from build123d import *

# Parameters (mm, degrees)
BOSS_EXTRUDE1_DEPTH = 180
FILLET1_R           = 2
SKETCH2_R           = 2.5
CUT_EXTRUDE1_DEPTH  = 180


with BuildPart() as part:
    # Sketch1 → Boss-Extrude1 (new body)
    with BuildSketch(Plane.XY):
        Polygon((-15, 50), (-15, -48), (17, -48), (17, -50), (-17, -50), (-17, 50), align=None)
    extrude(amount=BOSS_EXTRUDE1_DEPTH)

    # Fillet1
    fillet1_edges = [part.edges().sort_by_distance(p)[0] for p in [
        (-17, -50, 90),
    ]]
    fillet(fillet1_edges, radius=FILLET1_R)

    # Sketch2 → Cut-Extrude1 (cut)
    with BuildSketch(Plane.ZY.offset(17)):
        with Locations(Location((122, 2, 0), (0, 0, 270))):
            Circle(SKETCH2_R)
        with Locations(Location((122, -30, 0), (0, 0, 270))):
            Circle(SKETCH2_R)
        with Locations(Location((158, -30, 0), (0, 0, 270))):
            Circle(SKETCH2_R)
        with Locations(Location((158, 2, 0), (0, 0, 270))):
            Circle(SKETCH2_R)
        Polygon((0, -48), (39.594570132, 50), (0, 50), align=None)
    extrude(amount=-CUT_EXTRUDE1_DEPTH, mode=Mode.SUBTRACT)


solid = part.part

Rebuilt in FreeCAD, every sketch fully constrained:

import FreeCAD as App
import Part
import Sketcher
from FreeCAD import Vector
Q = App.Units.Quantity


def edges_at(feature, points):
    """Names of the edges that pass closest to the given points."""
    edges = feature.Shape.Edges
    near = lambda p: min(range(len(edges)), key=lambda i: edges[i].distToShape(Part.Vertex(*p))[0])
    return sorted({f"Edge{near(p) + 1}" for p in points})


def add_polygon(sketch, points):
    """Adds a closed chain of lines whose ends are joined by coincident constraints."""
    first, n = sketch.GeometryCount, len(points)
    for a, b in zip(points, points[1:] + points[:1]):
        sketch.addGeometry(Part.LineSegment(App.Vector(*a, 0), App.Vector(*b, 0)), False)
    for i in range(n):
        sketch.addConstraint(Sketcher.Constraint("Coincident", first + i, 2, first + (i + 1) % n, 1))

doc = App.newDocument("Part")
body = doc.addObject("PartDesign::Body", "Body")

sketch1 = body.newObject("Sketcher::SketchObject", "Sketch")
sketch1.AttachmentSupport = (doc.getObject("XY_Plane"), [""])
sketch1.MapMode = "FlatFace"
add_polygon(sketch1, [(-15, -48), (-15, 50), (-17, 50), (-17, -50), (17, -50), (17, -48)])
sketch1.addConstraint(Sketcher.Constraint("Vertical", 0))
sketch1.addConstraint(Sketcher.Constraint("Horizontal", 1))
sketch1.addConstraint(Sketcher.Constraint("Vertical", 2))
sketch1.addConstraint(Sketcher.Constraint("Horizontal", 3))
sketch1.addConstraint(Sketcher.Constraint("Vertical", 4))
sketch1.addConstraint(Sketcher.Constraint("Horizontal", 5))
sketch1.addConstraint(Sketcher.Constraint("Symmetric", 1, 2, 3, 2, -1, 1))
sketch1.addConstraint(Sketcher.Constraint("Equal", 1, 4))
sketch1.addConstraint(Sketcher.Constraint("DistanceX", 1, 2, 1, 1, Q("2 mm")))
sketch1.addConstraint(Sketcher.Constraint("DistanceX", 3, 1, 3, 2, Q("34 mm")))
sketch1.addConstraint(Sketcher.Constraint("DistanceY", 0, 1, 0, 2, Q("98 mm")))
pad1 = body.newObject("PartDesign::Pad", "Pad")
pad1.Profile = sketch1
pad1.Length = 180
doc.recompute()

fillet = body.newObject("PartDesign::Fillet", "Fillet")
fillet.Base = (pad1, edges_at(pad1, [(-17, -50, 90)]))
fillet.Radius = 2

sketch2 = body.newObject("Sketcher::SketchObject", "Sketch001")
sketch2.AttachmentSupport = (doc.getObject("YZ_Plane"), [""])
sketch2.MapMode = "FlatFace"
sketch2.AttachmentOffset = App.Placement(Vector(0, 0, -17), App.Rotation())
sketch2.addGeometry(Part.Circle(Vector(2, 122, 0), Vector(0, 0, 1), 2.5), False)
sketch2.addGeometry(Part.Circle(Vector(-30, 122, 0), Vector(0, 0, 1), 2.5), False)
sketch2.addGeometry(Part.Circle(Vector(-30, 158, 0), Vector(0, 0, 1), 2.5), False)
sketch2.addGeometry(Part.Circle(Vector(2, 158, 0), Vector(0, 0, 1), 2.5), False)
add_polygon(sketch2, [(-48, 0), (50, 39.6), (50, 0)])
sketch2.addConstraint(Sketcher.Constraint("Vertical", 5))
sketch2.addConstraint(Sketcher.Constraint("Horizontal", 6))
sketch2.addConstraint(Sketcher.Constraint("Equal", 0, 1))
sketch2.addConstraint(Sketcher.Constraint("Equal", 1, 2))
sketch2.addConstraint(Sketcher.Constraint("Equal", 2, 3))
sketch2.addConstraint(Sketcher.Constraint("PointOnObject", 5, 2, -1))
sketch2.addConstraint(Sketcher.Constraint("Horizontal", 0, 3, 1, 3))
sketch2.addConstraint(Sketcher.Constraint("Horizontal", 2, 3, 3, 3))
sketch2.addConstraint(Sketcher.Constraint("Vertical", 1, 3, 2, 3))
sketch2.addConstraint(Sketcher.Constraint("Vertical", 0, 3, 3, 3))
sketch2.addConstraint(Sketcher.Constraint("Diameter", 0, Q("5 mm")))
sketch2.addConstraint(Sketcher.Constraint("DistanceX", 6, 2, 6, 1, Q("98 mm")))
sketch2.addConstraint(Sketcher.Constraint("Angle", 4, Q("22 deg")))
sketch2.addConstraint(Sketcher.Constraint("DistanceX", -1, 1, 0, 3, Q("2 mm")))
sketch2.addConstraint(Sketcher.Constraint("DistanceY", -1, 1, 0, 3, Q("122 mm")))
sketch2.addConstraint(Sketcher.Constraint("DistanceX", 1, 3, -1, 1, Q("30 mm")))
sketch2.addConstraint(Sketcher.Constraint("DistanceY", -1, 1, 2, 3, Q("158 mm")))
sketch2.addConstraint(Sketcher.Constraint("DistanceX", -1, 1, 4, 2, Q("50 mm")))
pocket1 = body.newObject("PartDesign::Pocket", "Pocket")
pocket1.Profile = sketch2
pocket1.Length = 180
pocket1.Reversed = True

doc.recompute()
